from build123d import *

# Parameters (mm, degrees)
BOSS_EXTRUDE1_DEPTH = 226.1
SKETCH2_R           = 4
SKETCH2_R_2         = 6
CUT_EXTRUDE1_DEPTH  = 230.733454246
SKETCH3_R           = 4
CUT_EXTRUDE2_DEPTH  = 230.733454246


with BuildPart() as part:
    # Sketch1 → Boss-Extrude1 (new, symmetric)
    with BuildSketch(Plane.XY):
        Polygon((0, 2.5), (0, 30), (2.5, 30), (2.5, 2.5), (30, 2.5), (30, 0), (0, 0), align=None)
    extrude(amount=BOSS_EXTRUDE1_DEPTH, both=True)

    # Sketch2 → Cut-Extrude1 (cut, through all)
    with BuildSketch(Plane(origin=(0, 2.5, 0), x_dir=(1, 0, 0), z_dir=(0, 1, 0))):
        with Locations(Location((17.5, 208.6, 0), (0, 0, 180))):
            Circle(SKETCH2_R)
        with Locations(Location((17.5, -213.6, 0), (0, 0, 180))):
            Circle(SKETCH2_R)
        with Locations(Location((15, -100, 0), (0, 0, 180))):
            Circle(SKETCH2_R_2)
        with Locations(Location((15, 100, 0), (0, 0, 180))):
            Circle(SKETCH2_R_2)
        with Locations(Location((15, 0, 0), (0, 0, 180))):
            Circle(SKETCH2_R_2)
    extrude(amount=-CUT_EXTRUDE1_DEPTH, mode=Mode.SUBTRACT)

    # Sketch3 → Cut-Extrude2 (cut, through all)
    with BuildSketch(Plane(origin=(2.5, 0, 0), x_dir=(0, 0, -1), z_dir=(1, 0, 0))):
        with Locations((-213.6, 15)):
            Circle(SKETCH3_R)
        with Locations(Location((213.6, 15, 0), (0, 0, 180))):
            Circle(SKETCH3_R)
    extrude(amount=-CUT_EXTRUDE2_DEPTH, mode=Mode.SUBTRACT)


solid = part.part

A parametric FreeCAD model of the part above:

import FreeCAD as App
import Part
import Sketcher

V = App.Vector
Q = App.Units.Quantity


def add_polygon(sketch, points):
    """Adds a closed chain of lines whose ends are joined by coincident constraints."""
    first, n = sketch.GeometryCount, len(points)
    for a, b in zip(points, points[1:] + points[:1]):
        sketch.addGeometry(Part.LineSegment(App.Vector(*a, 0), App.Vector(*b, 0)), False)
    for i in range(n):
        sketch.addConstraint(Sketcher.Constraint("Coincident", first + i, 2, first + (i + 1) % n, 1))

doc = App.newDocument("Part")
body = doc.addObject("PartDesign::Body", "Body")

# Sketch on XY plane
sketch1 = body.newObject("Sketcher::SketchObject", "Sketch")
sketch1.AttachmentSupport = (doc.getObject("XY_Plane"), [""])
sketch1.MapMode = "FlatFace"
add_polygon(sketch1, [(0, 30), (0, 0), (30, 0), (30, 2.5), (2.5, 2.5), (2.5, 30)])  # lines 0-5
sketch1.addConstraint([
    Sketcher.Constraint("Vertical", 0),
    Sketcher.Constraint("Horizontal", 1),
    Sketcher.Constraint("Vertical", 2),
    Sketcher.Constraint("Horizontal", 3),
    Sketcher.Constraint("Vertical", 4),
    Sketcher.Constraint("Horizontal", 5),
    Sketcher.Constraint("Coincident", 0, 2, -1, 1),
    Sketcher.Constraint("Equal", 1, 0),
    Sketcher.Constraint("Equal", 5, 2),
    Sketcher.Constraint("DistanceX", 1, 1, 1, 2, Q("30 mm")),
    Sketcher.Constraint("DistanceX", 3, 2, 3, 1, Q("27.5 mm")),
])
pad1 = body.newObject("PartDesign::Pad", "Pad")
pad1.Profile = sketch1
pad1.Length = 452.2
pad1.Midplane = True

# Sketch on XZ plane
sketch2 = body.newObject("Sketcher::SketchObject", "Sketch001")
sketch2.AttachmentSupport = (doc.getObject("XZ_Plane"), [""])
sketch2.MapMode = "FlatFace"
sketch2.AttachmentOffset = App.Placement(V(0, 0, -2.5), App.Rotation())
sketch2.addGeometry([
    Part.Circle(V(17.5, -208.6, 0), V(0, 0, 1), 4),  # 0
    Part.Circle(V(17.5, 213.6, 0), V(0, 0, 1), 4),  # 1
    Part.Circle(V(15, 100, 0), V(0, 0, 1), 6),  # 2
    Part.Circle(V(15, -100, 0), V(0, 0, 1), 6),  # 3
    Part.Circle(V(15, 0, 0), V(0, 0, 1), 6),  # 4
], False)
sketch2.addConstraint([
    Sketcher.Constraint("Equal", 0, 1),
    Sketcher.Constraint("Equal", 2, 3),
    Sketcher.Constraint("Equal", 3, 4),
    Sketcher.Constraint("Symmetric", 2, 3, 3, 3, -1),
    Sketcher.Constraint("PointOnObject", 4, 3, -1),
    Sketcher.Constraint("Vertical", 0, 3, 1, 3),
    Sketcher.Constraint("Vertical", 3, 3, 4, 3),
    Sketcher.Constraint("Diameter", 0, Q("8 mm")),
    Sketcher.Constraint("Diameter", 2, Q("12 mm")),
    Sketcher.Constraint("DistanceX", -1, 1, 2, 3, Q("15 mm")),
    Sketcher.Constraint("DistanceY", -1, 1, 2, 3, Q("100 mm")),
    Sketcher.Constraint("DistanceX", -1, 1, 0, 3, Q("17.5 mm")),
    Sketcher.Constraint("DistanceY", 0, 3, -1, 1, Q("208.6 mm")),
    Sketcher.Constraint("DistanceY", -1, 1, 1, 3, Q("213.6 mm")),
])
pocket1 = body.newObject("PartDesign::Pocket", "Pocket")
pocket1.Profile = sketch2
pocket1.Type = "ThroughAll"
pocket1.Reversed = True

# Sketch on YZ plane
sketch3 = body.newObject("Sketcher::SketchObject", "Sketch002")
sketch3.AttachmentSupport = (doc.getObject("YZ_Plane"), [""])
sketch3.MapMode = "FlatFace"
sketch3.AttachmentOffset = App.Placement(V(0, 0, 2.5), App.Rotation())
sketch3.addGeometry([
    Part.Circle(V(15, 213.6, 0), V(0, 0, 1), 4),
    Part.Circle(V(15, -213.6, 0), V(0, 0, 1), 4),
], False)
sketch3.addConstraint([
    Sketcher.Constraint("Equal", 0, 1),
    Sketcher.Constraint("Symmetric", 0, 3, 1, 3, -1),
    Sketcher.Constraint("Diameter", 0, Q("8 mm")),
    Sketcher.Constraint("DistanceX", -1, 1, 0, 3, Q("15 mm")),
    Sketcher.Constraint("DistanceY", -1, 1, 0, 3, Q("213.6 mm")),
])
pocket2 = body.newObject("PartDesign::Pocket", "Pocket001")
pocket2.Profile = sketch3
pocket2.Type = "ThroughAll"

doc.recompute()
